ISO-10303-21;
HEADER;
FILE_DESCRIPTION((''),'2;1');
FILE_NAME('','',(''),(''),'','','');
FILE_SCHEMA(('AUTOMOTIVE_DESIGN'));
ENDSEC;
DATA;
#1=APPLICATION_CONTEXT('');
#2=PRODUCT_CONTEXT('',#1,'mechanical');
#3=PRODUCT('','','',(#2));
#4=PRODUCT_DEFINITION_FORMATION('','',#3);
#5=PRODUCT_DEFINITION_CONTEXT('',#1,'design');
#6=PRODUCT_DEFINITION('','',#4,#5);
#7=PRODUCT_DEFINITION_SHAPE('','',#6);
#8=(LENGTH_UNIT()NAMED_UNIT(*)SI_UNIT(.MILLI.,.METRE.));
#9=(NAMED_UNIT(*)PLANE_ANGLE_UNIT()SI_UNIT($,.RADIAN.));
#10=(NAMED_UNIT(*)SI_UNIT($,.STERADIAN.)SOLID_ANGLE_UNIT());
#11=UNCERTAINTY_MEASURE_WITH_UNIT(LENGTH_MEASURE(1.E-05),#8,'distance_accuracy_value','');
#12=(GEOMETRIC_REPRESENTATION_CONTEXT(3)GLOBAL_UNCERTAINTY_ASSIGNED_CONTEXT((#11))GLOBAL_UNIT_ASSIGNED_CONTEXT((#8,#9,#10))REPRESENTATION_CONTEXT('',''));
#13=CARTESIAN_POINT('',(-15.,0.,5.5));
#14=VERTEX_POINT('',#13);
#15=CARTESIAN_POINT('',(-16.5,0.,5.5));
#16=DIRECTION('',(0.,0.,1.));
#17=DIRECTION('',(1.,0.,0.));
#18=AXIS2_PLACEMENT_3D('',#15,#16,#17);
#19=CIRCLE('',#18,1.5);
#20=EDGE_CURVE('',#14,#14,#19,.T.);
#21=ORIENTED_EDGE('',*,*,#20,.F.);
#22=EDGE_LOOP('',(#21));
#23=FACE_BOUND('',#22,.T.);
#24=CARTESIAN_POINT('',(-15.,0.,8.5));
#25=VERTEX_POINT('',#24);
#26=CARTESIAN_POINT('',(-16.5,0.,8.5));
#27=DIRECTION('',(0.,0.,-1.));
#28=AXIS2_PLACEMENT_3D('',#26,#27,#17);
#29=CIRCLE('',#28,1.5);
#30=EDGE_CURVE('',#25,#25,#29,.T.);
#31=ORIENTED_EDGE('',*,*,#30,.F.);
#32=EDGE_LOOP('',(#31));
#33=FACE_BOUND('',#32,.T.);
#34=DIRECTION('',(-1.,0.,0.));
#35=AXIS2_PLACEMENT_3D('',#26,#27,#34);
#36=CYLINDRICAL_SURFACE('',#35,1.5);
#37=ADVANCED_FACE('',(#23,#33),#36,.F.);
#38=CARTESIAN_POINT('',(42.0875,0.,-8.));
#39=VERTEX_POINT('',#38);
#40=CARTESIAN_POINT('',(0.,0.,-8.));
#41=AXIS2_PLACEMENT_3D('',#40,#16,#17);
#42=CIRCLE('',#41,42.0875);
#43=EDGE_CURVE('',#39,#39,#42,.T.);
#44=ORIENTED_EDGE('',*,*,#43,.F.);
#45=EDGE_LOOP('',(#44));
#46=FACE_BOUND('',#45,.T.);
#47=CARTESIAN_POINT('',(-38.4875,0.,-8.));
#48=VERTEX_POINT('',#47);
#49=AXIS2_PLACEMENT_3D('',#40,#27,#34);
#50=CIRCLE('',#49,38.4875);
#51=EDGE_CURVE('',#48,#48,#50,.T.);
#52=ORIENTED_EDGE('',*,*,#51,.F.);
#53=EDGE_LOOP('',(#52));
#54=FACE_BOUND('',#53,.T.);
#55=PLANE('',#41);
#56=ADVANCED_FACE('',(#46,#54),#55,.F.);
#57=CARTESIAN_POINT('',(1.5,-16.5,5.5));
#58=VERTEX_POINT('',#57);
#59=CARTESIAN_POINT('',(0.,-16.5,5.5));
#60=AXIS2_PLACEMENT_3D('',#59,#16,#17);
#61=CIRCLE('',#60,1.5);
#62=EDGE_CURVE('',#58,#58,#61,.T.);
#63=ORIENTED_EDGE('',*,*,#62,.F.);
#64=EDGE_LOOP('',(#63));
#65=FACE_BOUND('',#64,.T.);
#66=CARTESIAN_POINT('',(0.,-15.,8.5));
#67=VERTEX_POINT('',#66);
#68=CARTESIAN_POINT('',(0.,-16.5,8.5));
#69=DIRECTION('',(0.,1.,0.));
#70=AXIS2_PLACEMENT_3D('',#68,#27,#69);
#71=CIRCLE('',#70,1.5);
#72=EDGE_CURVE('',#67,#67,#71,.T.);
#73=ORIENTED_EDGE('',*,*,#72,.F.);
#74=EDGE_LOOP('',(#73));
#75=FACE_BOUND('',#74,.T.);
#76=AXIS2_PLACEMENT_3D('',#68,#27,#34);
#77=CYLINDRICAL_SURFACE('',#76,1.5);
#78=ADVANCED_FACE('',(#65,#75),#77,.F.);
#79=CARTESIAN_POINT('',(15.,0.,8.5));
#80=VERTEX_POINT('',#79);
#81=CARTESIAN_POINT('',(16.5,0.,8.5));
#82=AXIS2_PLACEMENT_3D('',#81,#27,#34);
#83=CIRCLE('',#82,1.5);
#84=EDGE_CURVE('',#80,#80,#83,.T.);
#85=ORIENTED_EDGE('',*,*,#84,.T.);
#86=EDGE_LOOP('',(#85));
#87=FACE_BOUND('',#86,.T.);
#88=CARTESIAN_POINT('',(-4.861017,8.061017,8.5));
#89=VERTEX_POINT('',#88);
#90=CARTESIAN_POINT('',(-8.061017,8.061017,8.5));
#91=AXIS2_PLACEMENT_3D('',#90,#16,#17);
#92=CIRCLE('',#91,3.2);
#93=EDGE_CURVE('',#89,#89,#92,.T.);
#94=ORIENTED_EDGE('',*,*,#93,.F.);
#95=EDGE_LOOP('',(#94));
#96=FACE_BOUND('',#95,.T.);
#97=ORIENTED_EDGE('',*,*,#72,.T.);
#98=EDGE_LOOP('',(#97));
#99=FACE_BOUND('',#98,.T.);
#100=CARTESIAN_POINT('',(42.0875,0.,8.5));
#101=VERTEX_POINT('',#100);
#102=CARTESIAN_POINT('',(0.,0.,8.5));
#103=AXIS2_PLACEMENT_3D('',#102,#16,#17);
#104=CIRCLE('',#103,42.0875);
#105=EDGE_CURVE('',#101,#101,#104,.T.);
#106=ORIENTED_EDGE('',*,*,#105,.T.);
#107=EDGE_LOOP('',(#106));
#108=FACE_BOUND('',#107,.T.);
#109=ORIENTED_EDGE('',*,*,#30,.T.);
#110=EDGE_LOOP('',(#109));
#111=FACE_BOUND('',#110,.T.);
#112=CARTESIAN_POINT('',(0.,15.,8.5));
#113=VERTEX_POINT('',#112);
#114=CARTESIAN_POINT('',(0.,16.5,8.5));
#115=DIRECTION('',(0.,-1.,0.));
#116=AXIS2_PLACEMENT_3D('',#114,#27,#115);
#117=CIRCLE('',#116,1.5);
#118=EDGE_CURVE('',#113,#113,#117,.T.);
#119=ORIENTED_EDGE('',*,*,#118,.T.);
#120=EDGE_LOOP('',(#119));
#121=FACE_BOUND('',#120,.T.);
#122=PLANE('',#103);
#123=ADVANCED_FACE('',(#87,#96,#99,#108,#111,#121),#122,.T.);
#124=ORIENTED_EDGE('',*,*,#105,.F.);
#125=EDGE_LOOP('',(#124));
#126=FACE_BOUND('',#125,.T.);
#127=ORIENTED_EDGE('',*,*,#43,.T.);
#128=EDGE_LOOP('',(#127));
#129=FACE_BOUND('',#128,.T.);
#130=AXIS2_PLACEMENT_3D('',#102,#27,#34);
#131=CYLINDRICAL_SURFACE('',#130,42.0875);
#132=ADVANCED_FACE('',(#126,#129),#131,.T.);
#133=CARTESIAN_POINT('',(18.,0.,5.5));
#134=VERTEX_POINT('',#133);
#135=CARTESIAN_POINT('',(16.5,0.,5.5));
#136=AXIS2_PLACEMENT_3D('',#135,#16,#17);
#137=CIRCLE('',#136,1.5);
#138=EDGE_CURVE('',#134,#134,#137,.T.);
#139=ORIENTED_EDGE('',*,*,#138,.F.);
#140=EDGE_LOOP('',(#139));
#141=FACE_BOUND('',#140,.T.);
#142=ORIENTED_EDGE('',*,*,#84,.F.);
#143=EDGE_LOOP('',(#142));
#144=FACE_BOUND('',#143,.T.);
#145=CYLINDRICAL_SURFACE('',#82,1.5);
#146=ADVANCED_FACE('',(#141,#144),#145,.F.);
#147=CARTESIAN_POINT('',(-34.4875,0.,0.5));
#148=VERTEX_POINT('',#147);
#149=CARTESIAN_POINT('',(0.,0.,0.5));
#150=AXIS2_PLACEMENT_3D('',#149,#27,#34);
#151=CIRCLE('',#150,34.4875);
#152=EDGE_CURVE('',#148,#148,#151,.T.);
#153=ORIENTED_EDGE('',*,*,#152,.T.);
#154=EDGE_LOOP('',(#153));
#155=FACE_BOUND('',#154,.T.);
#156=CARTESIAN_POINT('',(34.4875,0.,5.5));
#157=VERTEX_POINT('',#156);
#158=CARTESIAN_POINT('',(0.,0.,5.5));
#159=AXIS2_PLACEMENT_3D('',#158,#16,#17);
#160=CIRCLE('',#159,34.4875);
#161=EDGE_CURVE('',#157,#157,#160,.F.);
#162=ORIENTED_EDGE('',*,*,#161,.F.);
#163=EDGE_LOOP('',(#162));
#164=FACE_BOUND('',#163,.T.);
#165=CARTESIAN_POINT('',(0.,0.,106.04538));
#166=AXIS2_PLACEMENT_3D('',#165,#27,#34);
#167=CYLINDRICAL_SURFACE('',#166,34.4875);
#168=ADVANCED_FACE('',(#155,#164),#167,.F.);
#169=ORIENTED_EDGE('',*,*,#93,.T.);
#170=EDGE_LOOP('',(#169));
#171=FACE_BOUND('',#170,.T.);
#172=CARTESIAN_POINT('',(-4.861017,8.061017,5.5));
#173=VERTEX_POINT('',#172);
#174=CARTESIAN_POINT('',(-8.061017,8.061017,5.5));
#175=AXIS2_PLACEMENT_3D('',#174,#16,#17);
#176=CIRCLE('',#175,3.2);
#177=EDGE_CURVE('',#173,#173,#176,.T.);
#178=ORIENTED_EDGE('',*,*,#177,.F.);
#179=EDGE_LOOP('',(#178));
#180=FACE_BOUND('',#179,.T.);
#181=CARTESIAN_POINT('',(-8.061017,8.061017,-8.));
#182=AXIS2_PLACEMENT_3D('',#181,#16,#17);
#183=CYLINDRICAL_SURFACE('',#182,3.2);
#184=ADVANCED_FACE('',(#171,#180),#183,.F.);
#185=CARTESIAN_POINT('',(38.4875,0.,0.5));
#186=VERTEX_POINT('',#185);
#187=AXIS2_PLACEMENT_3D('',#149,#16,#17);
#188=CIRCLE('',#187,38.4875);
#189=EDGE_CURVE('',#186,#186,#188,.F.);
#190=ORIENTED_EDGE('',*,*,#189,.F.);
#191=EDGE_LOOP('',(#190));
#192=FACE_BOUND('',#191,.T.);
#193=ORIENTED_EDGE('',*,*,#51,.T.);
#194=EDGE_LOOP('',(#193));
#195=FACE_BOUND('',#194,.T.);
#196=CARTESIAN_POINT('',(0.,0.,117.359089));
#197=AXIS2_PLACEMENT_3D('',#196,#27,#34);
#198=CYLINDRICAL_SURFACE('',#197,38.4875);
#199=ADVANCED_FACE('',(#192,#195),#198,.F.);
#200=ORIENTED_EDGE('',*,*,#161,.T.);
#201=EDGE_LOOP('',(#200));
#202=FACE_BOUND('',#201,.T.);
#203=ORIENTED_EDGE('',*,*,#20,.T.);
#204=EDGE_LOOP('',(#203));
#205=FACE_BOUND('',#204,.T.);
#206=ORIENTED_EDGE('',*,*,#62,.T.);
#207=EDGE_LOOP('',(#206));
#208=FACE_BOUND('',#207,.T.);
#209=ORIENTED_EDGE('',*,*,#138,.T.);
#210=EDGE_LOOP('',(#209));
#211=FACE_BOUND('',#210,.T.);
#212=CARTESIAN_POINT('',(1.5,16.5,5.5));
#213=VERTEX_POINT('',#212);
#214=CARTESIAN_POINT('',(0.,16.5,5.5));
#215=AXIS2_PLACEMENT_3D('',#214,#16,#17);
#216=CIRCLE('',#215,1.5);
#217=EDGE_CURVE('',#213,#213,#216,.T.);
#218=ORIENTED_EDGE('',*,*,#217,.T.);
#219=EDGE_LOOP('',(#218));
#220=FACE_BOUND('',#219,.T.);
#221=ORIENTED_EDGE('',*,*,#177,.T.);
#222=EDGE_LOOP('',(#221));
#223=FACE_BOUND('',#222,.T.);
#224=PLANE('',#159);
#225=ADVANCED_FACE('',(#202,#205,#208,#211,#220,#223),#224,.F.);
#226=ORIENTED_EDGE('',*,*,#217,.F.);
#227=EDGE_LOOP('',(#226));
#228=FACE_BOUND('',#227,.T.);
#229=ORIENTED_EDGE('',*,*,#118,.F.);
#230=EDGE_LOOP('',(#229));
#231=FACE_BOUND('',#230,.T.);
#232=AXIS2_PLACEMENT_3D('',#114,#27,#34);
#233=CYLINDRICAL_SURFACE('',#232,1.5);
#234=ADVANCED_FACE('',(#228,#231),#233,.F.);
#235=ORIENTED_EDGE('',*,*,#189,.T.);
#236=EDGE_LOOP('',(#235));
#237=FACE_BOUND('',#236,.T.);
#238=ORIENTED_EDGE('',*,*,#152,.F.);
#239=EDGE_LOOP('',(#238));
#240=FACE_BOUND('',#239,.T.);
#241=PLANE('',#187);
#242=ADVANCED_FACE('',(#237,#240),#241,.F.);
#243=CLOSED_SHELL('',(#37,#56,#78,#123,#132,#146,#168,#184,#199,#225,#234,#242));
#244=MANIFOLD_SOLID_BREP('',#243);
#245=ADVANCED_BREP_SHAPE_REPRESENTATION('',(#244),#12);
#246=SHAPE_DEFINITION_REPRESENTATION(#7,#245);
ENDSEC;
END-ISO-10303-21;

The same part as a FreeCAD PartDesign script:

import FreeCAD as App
import Part
import Sketcher

V = App.Vector

doc = App.newDocument("Part")
body = doc.addObject("PartDesign::Body", "Body")

# Sketch on XY plane
sketch1 = body.newObject("Sketcher::SketchObject", "Sketch")
sketch1.AttachmentSupport = (doc.getObject("XY_Plane"), [""])
sketch1.MapMode = "FlatFace"
sketch1.AttachmentOffset = App.Placement(V(0, 0, -8), App.Rotation())
sketch1.addGeometry(Part.Circle(V(0, 0, 0), V(0, 0, 1), 42), False)
sketch1.addConstraint([
    Sketcher.Constraint("Coincident", 0, 3, -1, 1),
    Sketcher.Constraint("Diameter", 0, 84.175),
])
pad1 = body.newObject("PartDesign::Pad", "Pad")
pad1.Profile = sketch1
pad1.Length = 16.5

# Sketch on XY plane
sketch2 = body.newObject("Sketcher::SketchObject", "Sketch001")
sketch2.AttachmentSupport = (doc.getObject("XY_Plane"), [""])
sketch2.MapMode = "FlatFace"
sketch2.AttachmentOffset = App.Placement(V(0, 0, -8), App.Rotation())
sketch2.addGeometry(Part.Circle(V(0, 0, 0), V(0, 0, 1), 38), False)
sketch2.addConstraint([
    Sketcher.Constraint("Coincident", 0, 3, -1, 1),
    Sketcher.Constraint("Diameter", 0, 76.975),
])
pocket1 = body.newObject("PartDesign::Pocket", "Pocket")
pocket1.Profile = sketch2
pocket1.Length = 8.5
pocket1.Reversed = True

# Sketch on XY plane
sketch3 = body.newObject("Sketcher::SketchObject", "Sketch002")
sketch3.AttachmentSupport = (doc.getObject("XY_Plane"), [""])
sketch3.MapMode = "FlatFace"
sketch3.AttachmentOffset = App.Placement(V(0, 0, 0.5), App.Rotation())
sketch3.addGeometry(Part.Circle(V(0, 0, 0), V(0, 0, 1), 34), False)
sketch3.addConstraint([
    Sketcher.Constraint("Coincident", 0, 3, -1, 1),
    Sketcher.Constraint("Diameter", 0, 68.975),
])
pocket2 = body.newObject("PartDesign::Pocket", "Pocket001")
pocket2.Profile = sketch3
pocket2.Length = 5
pocket2.Reversed = True

# Sketch on XY plane
sketch4 = body.newObject("Sketcher::SketchObject", "Sketch003")
sketch4.AttachmentSupport = (doc.getObject("XY_Plane"), [""])
sketch4.MapMode = "FlatFace"
sketch4.AttachmentOffset = App.Placement(V(0, 0, 8.5), App.Rotation())
sketch4.addGeometry(Part.Circle(V(-8.1, 8.1, 0), V(0, 0, 1), 3.2), False)
sketch4.addConstraint([
    Sketcher.Constraint("Diameter", 0, 6.4),
    Sketcher.Constraint("DistanceX", 0, 3, -1, 1, 8.061017),
    Sketcher.Constraint("DistanceY", -1, 1, 0, 3, 8.061017),
])
pocket3 = body.newObject("PartDesign::Pocket", "Pocket002")
pocket3.Profile = sketch4
pocket3.Type = "ThroughAll"
pocket3.Midplane = True

# Sketch on XY plane
sketch5 = body.newObject("Sketcher::SketchObject", "Sketch004")
sketch5.AttachmentSupport = (doc.getObject("XY_Plane"), [""])
sketch5.MapMode = "FlatFace"
sketch5.AttachmentOffset = App.Placement(V(0, 0, 9.5), App.Rotation())
sketch5.addGeometry(Part.Circle(V(16.5, 0, 0), V(0, 0, 1), 1.5), False)
sketch5.addConstraint([
    Sketcher.Constraint("PointOnObject", 0, 3, -1),
    Sketcher.Constraint("Diameter", 0, 3.0),
    Sketcher.Constraint("DistanceX", -1, 1, 0, 3, 16.5),
])
pocket4 = body.newObject("PartDesign::Pocket", "Pocket003")
pocket4.Profile = sketch5
pocket4.Length = 18.5
doc.recompute()

polarpattern = body.newObject("PartDesign::PolarPattern", "PolarPattern")
polarpattern.Originals = [pocket4]
polarpattern.Axis = (doc.getObject("Z_Axis"), [""])
polarpattern.Angle = 360
polarpattern.Occurrences = 4
body.Tip = polarpattern

doc.recompute()
